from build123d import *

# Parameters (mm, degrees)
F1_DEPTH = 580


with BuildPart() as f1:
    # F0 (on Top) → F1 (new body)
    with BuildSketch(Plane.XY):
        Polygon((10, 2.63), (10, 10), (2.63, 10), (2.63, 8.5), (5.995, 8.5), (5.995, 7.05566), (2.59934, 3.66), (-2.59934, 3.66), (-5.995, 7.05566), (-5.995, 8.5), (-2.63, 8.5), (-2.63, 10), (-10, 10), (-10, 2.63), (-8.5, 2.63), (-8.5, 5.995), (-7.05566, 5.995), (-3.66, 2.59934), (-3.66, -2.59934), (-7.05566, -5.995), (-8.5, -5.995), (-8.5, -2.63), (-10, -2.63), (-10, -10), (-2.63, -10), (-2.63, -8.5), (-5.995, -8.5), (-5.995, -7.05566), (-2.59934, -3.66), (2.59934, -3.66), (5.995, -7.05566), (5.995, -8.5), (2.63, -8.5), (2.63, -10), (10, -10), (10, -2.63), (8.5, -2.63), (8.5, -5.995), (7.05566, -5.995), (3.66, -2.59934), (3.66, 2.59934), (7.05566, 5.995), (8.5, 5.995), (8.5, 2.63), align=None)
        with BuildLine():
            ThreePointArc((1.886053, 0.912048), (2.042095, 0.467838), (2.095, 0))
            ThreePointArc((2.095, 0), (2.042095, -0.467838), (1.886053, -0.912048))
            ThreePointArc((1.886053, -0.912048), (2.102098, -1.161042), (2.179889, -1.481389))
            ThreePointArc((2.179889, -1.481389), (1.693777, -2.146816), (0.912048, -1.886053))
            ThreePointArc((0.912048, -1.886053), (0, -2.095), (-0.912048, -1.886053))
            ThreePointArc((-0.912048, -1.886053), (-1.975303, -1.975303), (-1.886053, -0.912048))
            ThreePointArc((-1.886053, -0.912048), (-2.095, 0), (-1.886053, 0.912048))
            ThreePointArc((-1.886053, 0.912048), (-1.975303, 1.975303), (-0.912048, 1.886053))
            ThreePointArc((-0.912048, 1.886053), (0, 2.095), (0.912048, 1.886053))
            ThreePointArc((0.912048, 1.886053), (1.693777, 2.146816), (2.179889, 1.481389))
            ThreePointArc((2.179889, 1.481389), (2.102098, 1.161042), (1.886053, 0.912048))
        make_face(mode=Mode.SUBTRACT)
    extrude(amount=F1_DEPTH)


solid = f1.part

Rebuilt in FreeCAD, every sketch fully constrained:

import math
import FreeCAD as App
import Part
import Sketcher
from FreeCAD import Vector
Q = App.Units.Quantity

doc = App.newDocument("Part")
body = doc.addObject("PartDesign::Body", "Body")

sketch1 = body.newObject("Sketcher::SketchObject", "Sketch")
sketch1.AttachmentSupport = (doc.getObject("XY_Plane"), [""])
sketch1.MapMode = "FlatFace"
sketch1.addGeometry([
    Part.LineSegment(Vector(10, 2.6, 0), Vector(10, 10, 0)),
    Part.LineSegment(Vector(10, 10, 0), Vector(2.6, 10, 0)),
    Part.LineSegment(Vector(2.6, 10, 0), Vector(2.6, 8.5, 0)),
    Part.LineSegment(Vector(2.6, 8.5, 0), Vector(6, 8.5, 0)),
    Part.LineSegment(Vector(6, 8.5, 0), Vector(6, 7.1, 0)),
    Part.LineSegment(Vector(6, 7.1, 0), Vector(2.6, 3.7, 0)),
    Part.LineSegment(Vector(2.6, 3.7, 0), Vector(-2.6, 3.7, 0)),
    Part.LineSegment(Vector(-2.6, 3.7, 0), Vector(-6, 7.1, 0)),
    Part.LineSegment(Vector(-6, 7.1, 0), Vector(-6, 8.5, 0)),
    Part.LineSegment(Vector(-6, 8.5, 0), Vector(-2.6, 8.5, 0)),
    Part.LineSegment(Vector(-2.6, 8.5, 0), Vector(-2.6, 10, 0)),
    Part.LineSegment(Vector(-2.6, 10, 0), Vector(-10, 10, 0)),
    Part.LineSegment(Vector(-10, 10, 0), Vector(-10, 2.6, 0)),
    Part.LineSegment(Vector(-10, 2.6, 0), Vector(-8.5, 2.6, 0)),
    Part.LineSegment(Vector(-8.5, 2.6, 0), Vector(-8.5, 6, 0)),
    Part.LineSegment(Vector(-8.5, 6, 0), Vector(-7.1, 6, 0)),
    Part.LineSegment(Vector(-7.1, 6, 0), Vector(-3.7, 2.6, 0)),
    Part.LineSegment(Vector(-3.7, 2.6, 0), Vector(-3.7, -2.6, 0)),
    Part.LineSegment(Vector(-3.7, -2.6, 0), Vector(-7.1, -6, 0)),
    Part.LineSegment(Vector(-7.1, -6, 0), Vector(-8.5, -6, 0)),
    Part.LineSegment(Vector(-8.5, -6, 0), Vector(-8.5, -2.6, 0)),
    Part.LineSegment(Vector(-8.5, -2.6, 0), Vector(-10, -2.6, 0)),
    Part.LineSegment(Vector(-10, -2.6, 0), Vector(-10, -10, 0)),
    Part.LineSegment(Vector(-10, -10, 0), Vector(-2.6, -10, 0)),
    Part.LineSegment(Vector(-2.6, -10, 0), Vector(-2.6, -8.5, 0)),
    Part.LineSegment(Vector(-2.6, -8.5, 0), Vector(-6, -8.5, 0)),
    Part.LineSegment(Vector(-6, -8.5, 0), Vector(-6, -7.1, 0)),
    Part.LineSegment(Vector(-6, -7.1, 0), Vector(-2.6, -3.7, 0)),
    Part.LineSegment(Vector(-2.6, -3.7, 0), Vector(2.6, -3.7, 0)),
    Part.LineSegment(Vector(2.6, -3.7, 0), Vector(6, -7.1, 0)),
    Part.LineSegment(Vector(6, -7.1, 0), Vector(6, -8.5, 0)),
    Part.LineSegment(Vector(6, -8.5, 0), Vector(2.6, -8.5, 0)),
    Part.LineSegment(Vector(2.6, -8.5, 0), Vector(2.6, -10, 0)),
    Part.LineSegment(Vector(2.6, -10, 0), Vector(10, -10, 0)),
    Part.LineSegment(Vector(10, -10, 0), Vector(10, -2.6, 0)),
    Part.LineSegment(Vector(10, -2.6, 0), Vector(8.5, -2.6, 0)),
    Part.LineSegment(Vector(8.5, -2.6, 0), Vector(8.5, -6, 0)),
    Part.LineSegment(Vector(8.5, -6, 0), Vector(7.1, -6, 0)),
    Part.LineSegment(Vector(7.1, -6, 0), Vector(3.7, -2.6, 0)),
    Part.LineSegment(Vector(3.7, -2.6, 0), Vector(3.7, 2.6, 0)),
    Part.LineSegment(Vector(3.7, 2.6, 0), Vector(7.1, 6, 0)),
    Part.LineSegment(Vector(7.1, 6, 0), Vector(8.5, 6, 0)),
    Part.LineSegment(Vector(8.5, 6, 0), Vector(8.5, 2.6, 0)),
    Part.LineSegment(Vector(8.5, 2.6, 0), Vector(10, 2.6, 0)),
    Part.ArcOfCircle(Part.Circle(Vector(1.5, 1.5, 0), Vector(0, 0, 1), 0.7), math.radians(-55), math.radians(0)),
    Part.ArcOfCircle(Part.Circle(Vector(0, 0, 0), Vector(0, 0, 1), 2.1), math.radians(0), math.radians(26)),
    Part.ArcOfCircle(Part.Circle(Vector(0, 0, 0), Vector(0, 0, 1), 2.1), math.radians(-26), math.radians(0)),
    Part.ArcOfCircle(Part.Circle(Vector(1.5, -1.5, 0), Vector(0, 0, 1), 0.7), math.radians(0), math.radians(55)),
    Part.ArcOfCircle(Part.Circle(Vector(1.5, -1.5, 0), Vector(0, 0, 1), 0.7), math.radians(-145), math.radians(0)),
    Part.ArcOfCircle(Part.Circle(Vector(0, 0, 0), Vector(0, 0, 1), 2.1), math.radians(-116), math.radians(-64)),
    Part.ArcOfCircle(Part.Circle(Vector(-1.5, -1.5, 0), Vector(0, 0, 1), 0.7), math.radians(125), math.radians(325)),
    Part.ArcOfCircle(Part.Circle(Vector(0, 0, 0), Vector(0, 0, 1), 2.1), math.radians(154), math.radians(206)),
    Part.ArcOfCircle(Part.Circle(Vector(-1.5, 1.5, 0), Vector(0, 0, 1), 0.7), math.radians(35), math.radians(235)),
    Part.ArcOfCircle(Part.Circle(Vector(0, 0, 0), Vector(0, 0, 1), 2.1), math.radians(64), math.radians(116)),
    Part.ArcOfCircle(Part.Circle(Vector(1.5, 1.5, 0), Vector(0, 0, 1), 0.7), math.radians(0), math.radians(145)),
], False)
sketch1.addConstraint([
    Sketcher.Constraint("Coincident", 0, 2, 1, 1),
    Sketcher.Constraint("Coincident", 1, 2, 2, 1),
    Sketcher.Constraint("Coincident", 2, 2, 3, 1),
    Sketcher.Constraint("Coincident", 3, 2, 4, 1),
    Sketcher.Constraint("Coincident", 4, 2, 5, 1),
    Sketcher.Constraint("Coincident", 5, 2, 6, 1),
    Sketcher.Constraint("Coincident", 6, 2, 7, 1),
    Sketcher.Constraint("Coincident", 7, 2, 8, 1),
    Sketcher.Constraint("Coincident", 8, 2, 9, 1),
    Sketcher.Constraint("Coincident", 9, 2, 10, 1),
    Sketcher.Constraint("Coincident", 10, 2, 11, 1),
    Sketcher.Constraint("Coincident", 11, 2, 12, 1),
    Sketcher.Constraint("Coincident", 12, 2, 13, 1),
    Sketcher.Constraint("Coincident", 13, 2, 14, 1),
    Sketcher.Constraint("Coincident", 14, 2, 15, 1),
    Sketcher.Constraint("Coincident", 15, 2, 16, 1),
    Sketcher.Constraint("Coincident", 16, 2, 17, 1),
    Sketcher.Constraint("Coincident", 17, 2, 18, 1),
    Sketcher.Constraint("Coincident", 18, 2, 19, 1),
    Sketcher.Constraint("Coincident", 19, 2, 20, 1),
    Sketcher.Constraint("Coincident", 20, 2, 21, 1),
    Sketcher.Constraint("Coincident", 21, 2, 22, 1),
    Sketcher.Constraint("Coincident", 22, 2, 23, 1),
    Sketcher.Constraint("Coincident", 23, 2, 24, 1),
    Sketcher.Constraint("Coincident", 24, 2, 25, 1),
    Sketcher.Constraint("Coincident", 25, 2, 26, 1),
    Sketcher.Constraint("Coincident", 26, 2, 27, 1),
    Sketcher.Constraint("Coincident", 27, 2, 28, 1),
    Sketcher.Constraint("Coincident", 28, 2, 29, 1),
    Sketcher.Constraint("Coincident", 29, 2, 30, 1),
    Sketcher.Constraint("Coincident", 30, 2, 31, 1),
    Sketcher.Constraint("Coincident", 31, 2, 32, 1),
    Sketcher.Constraint("Coincident", 32, 2, 33, 1),
    Sketcher.Constraint("Coincident", 33, 2, 34, 1),
    Sketcher.Constraint("Coincident", 34, 2, 35, 1),
    Sketcher.Constraint("Coincident", 35, 2, 36, 1),
    Sketcher.Constraint("Coincident", 36, 2, 37, 1),
    Sketcher.Constraint("Coincident", 37, 2, 38, 1),
    Sketcher.Constraint("Coincident", 38, 2, 39, 1),
    Sketcher.Constraint("Coincident", 39, 2, 40, 1),
    Sketcher.Constraint("Coincident", 40, 2, 41, 1),
    Sketcher.Constraint("Coincident", 41, 2, 42, 1),
    Sketcher.Constraint("Coincident", 42, 2, 43, 1),
    Sketcher.Constraint("Coincident", 43, 2, 0, 1),
    Sketcher.Constraint("Coincident", 44, 1, 45, 2),
    Sketcher.Constraint("Coincident", 45, 1, 46, 2),
    Sketcher.Constraint("Coincident", 46, 1, 47, 2),
    Sketcher.Constraint("Coincident", 47, 1, 48, 2),
    Sketcher.Constraint("Coincident", 48, 1, 49, 2),
    Sketcher.Constraint("Coincident", 49, 1, 50, 2),
    Sketcher.Constraint("Coincident", 50, 1, 51, 2),
    Sketcher.Constraint("Coincident", 51, 1, 52, 2),
    Sketcher.Constraint("Coincident", 52, 1, 53, 2),
    Sketcher.Constraint("Coincident", 53, 1, 54, 2),
    Sketcher.Constraint("Coincident", 54, 1, 44, 2),
    Sketcher.Constraint("Vertical", 0),
    Sketcher.Constraint("Horizontal", 1),
    Sketcher.Constraint("Vertical", 2),
    Sketcher.Constraint("Horizontal", 3),
    Sketcher.Constraint("Vertical", 4),
    Sketcher.Constraint("Horizontal", 6),
    Sketcher.Constraint("Vertical", 8),
    Sketcher.Constraint("Horizontal", 9),
    Sketcher.Constraint("Vertical", 10),
    Sketcher.Constraint("Horizontal", 11),
    Sketcher.Constraint("Vertical", 12),
    Sketcher.Constraint("Horizontal", 13),
    Sketcher.Constraint("Vertical", 14),
    Sketcher.Constraint("Horizontal", 15),
    Sketcher.Constraint("Vertical", 17),
    Sketcher.Constraint("Horizontal", 19),
    Sketcher.Constraint("Vertical", 20),
    Sketcher.Constraint("Horizontal", 21),
    Sketcher.Constraint("Vertical", 22),
    Sketcher.Constraint("Horizontal", 23),
    Sketcher.Constraint("Vertical", 24),
    Sketcher.Constraint("Horizontal", 25),
    Sketcher.Constraint("Vertical", 26),
    Sketcher.Constraint("Horizontal", 28),
    Sketcher.Constraint("Vertical", 30),
    Sketcher.Constraint("Horizontal", 31),
    Sketcher.Constraint("Vertical", 32),
    Sketcher.Constraint("Horizontal", 33),
    Sketcher.Constraint("Vertical", 34),
    Sketcher.Constraint("Horizontal", 35),
    Sketcher.Constraint("Vertical", 36),
    Sketcher.Constraint("Horizontal", 37),
    Sketcher.Constraint("Vertical", 39),
    Sketcher.Constraint("Horizontal", 41),
    Sketcher.Constraint("Vertical", 42),
    Sketcher.Constraint("Horizontal", 43),
    Sketcher.Constraint("Coincident", 49, 3, -1, 1),
    Sketcher.Constraint("Coincident", 51, 3, -1, 1),
    Sketcher.Constraint("Coincident", 53, 3, -1, 1),
    Sketcher.Constraint("Coincident", 46, 3, 45, 3),
    Sketcher.Constraint("Coincident", 48, 3, 47, 3),
    Sketcher.Constraint("Coincident", 54, 3, 44, 3),
    Sketcher.Constraint("Equal", 44, 47),
    Sketcher.Constraint("Equal", 48, 50),
    Sketcher.Constraint("Equal", 49, 51),
    Sketcher.Constraint("Equal", 50, 52),
    Sketcher.Constraint("Equal", 51, 53),
    Sketcher.Constraint("Symmetric", 44, 3, 50, 3, -1, 1),
    Sketcher.Constraint("Symmetric", 47, 3, 52, 3, -1, 1),
    Sketcher.Constraint("Symmetric", 0, 2, 22, 2, -1, 1),
    Sketcher.Constraint("Symmetric", 2, 2, 24, 2, -1, 1),
    Sketcher.Constraint("Symmetric", 4, 2, 26, 2, -1, 1),
    Sketcher.Constraint("Symmetric", 5, 2, 27, 2, -1, 1),
    Sketcher.Constraint("Symmetric", 7, 2, 29, 2, -1, 1),
    Sketcher.Constraint("Symmetric", 9, 2, 31, 2, -1, 1),
    Sketcher.Constraint("Symmetric", 11, 2, 33, 2, -1, 1),
    Sketcher.Constraint("Symmetric", 13, 2, 35, 2, -1, 1),
    Sketcher.Constraint("Symmetric", 15, 2, 37, 2, -1, 1),
    Sketcher.Constraint("Symmetric", 16, 2, 38, 2, -1, 1),
    Sketcher.Constraint("Symmetric", 18, 2, 40, 2, -1, 1),
    Sketcher.Constraint("Symmetric", 20, 2, 42, 2, -1, 1),
    Sketcher.Constraint("Symmetric", 47, 3, 50, 3, -2),
    Sketcher.Constraint("Symmetric", 4, 2, 7, 2, -2),
    Sketcher.Constraint("Symmetric", 2, 2, 9, 2, -2),
    Sketcher.Constraint("Symmetric", 0, 2, 11, 2, -2),
    Sketcher.Constraint("Symmetric", 20, 2, 35, 2, -2),
    Sketcher.Constraint("Symmetric", 18, 2, 37, 2, -2),
    Sketcher.Constraint("PointOnObject", 45, 1, -1),
    Sketcher.Constraint("Perpendicular", 5, 7),
    Sketcher.Constraint("Parallel", 7, 16),
    Sketcher.Constraint("Perpendicular", 16, 18),
    Sketcher.Constraint("Perpendicular", 27, 29),
    Sketcher.Constraint("Perpendicular", 38, 40),
    Sketcher.Constraint("Horizontal", 17, 2, 38, 2),
    Sketcher.Constraint("Horizontal", 50, 3, 47, 1),
    Sketcher.Constraint("Horizontal", 46, 1, 50, 1),
    Sketcher.Constraint("Horizontal", 44, 1, 51, 1),
    Sketcher.Constraint("Horizontal", 52, 3, 54, 1),
    Sketcher.Constraint("Equal", 33, 0),
    Sketcher.Constraint("Equal", 43, 2),
    Sketcher.Constraint("Equal", 41, 4),
    Sketcher.Constraint("Equal", 31, 14),
    Sketcher.Constraint("Equal", 28, 17),
    Sketcher.Constraint("Equal", 7, 16),
    Sketcher.Constraint("DistanceX", 13, 1, 13, 2, Q("1.5 mm")),
    Sketcher.Constraint("DistanceX", -1, 1, 0, 2, Q("10 mm")),
    Sketcher.Constraint("DistanceX", 1, 2, 1, 1, Q("7.37 mm")),
    Sketcher.Constraint("Radius", 44, Q("0.698502 mm")),
    Sketcher.Constraint("DistanceX", 3, 1, 3, 2, Q("3.365 mm")),
    Sketcher.Constraint("DistanceY", -1, 1, 5, 2, Q("3.66 mm")),
    Sketcher.Constraint("DistanceX", -1, 1, 45, 1, Q("2.095 mm")),
    Sketcher.Constraint("Radius", 45, Q("2.095017 mm")),
    Sketcher.Constraint("DistanceX", 6, 2, 6, 1, Q("5.19868 mm")),
    Sketcher.Constraint("DistanceY", -1, 1, 44, 3, Q("1.48139 mm")),
    Sketcher.Constraint("DistanceX", -1, 1, 48, 3, Q("1.481389 mm")),
])
pad1 = body.newObject("PartDesign::Pad", "Pad")
pad1.Profile = sketch1
pad1.Length = 580

doc.recompute()
